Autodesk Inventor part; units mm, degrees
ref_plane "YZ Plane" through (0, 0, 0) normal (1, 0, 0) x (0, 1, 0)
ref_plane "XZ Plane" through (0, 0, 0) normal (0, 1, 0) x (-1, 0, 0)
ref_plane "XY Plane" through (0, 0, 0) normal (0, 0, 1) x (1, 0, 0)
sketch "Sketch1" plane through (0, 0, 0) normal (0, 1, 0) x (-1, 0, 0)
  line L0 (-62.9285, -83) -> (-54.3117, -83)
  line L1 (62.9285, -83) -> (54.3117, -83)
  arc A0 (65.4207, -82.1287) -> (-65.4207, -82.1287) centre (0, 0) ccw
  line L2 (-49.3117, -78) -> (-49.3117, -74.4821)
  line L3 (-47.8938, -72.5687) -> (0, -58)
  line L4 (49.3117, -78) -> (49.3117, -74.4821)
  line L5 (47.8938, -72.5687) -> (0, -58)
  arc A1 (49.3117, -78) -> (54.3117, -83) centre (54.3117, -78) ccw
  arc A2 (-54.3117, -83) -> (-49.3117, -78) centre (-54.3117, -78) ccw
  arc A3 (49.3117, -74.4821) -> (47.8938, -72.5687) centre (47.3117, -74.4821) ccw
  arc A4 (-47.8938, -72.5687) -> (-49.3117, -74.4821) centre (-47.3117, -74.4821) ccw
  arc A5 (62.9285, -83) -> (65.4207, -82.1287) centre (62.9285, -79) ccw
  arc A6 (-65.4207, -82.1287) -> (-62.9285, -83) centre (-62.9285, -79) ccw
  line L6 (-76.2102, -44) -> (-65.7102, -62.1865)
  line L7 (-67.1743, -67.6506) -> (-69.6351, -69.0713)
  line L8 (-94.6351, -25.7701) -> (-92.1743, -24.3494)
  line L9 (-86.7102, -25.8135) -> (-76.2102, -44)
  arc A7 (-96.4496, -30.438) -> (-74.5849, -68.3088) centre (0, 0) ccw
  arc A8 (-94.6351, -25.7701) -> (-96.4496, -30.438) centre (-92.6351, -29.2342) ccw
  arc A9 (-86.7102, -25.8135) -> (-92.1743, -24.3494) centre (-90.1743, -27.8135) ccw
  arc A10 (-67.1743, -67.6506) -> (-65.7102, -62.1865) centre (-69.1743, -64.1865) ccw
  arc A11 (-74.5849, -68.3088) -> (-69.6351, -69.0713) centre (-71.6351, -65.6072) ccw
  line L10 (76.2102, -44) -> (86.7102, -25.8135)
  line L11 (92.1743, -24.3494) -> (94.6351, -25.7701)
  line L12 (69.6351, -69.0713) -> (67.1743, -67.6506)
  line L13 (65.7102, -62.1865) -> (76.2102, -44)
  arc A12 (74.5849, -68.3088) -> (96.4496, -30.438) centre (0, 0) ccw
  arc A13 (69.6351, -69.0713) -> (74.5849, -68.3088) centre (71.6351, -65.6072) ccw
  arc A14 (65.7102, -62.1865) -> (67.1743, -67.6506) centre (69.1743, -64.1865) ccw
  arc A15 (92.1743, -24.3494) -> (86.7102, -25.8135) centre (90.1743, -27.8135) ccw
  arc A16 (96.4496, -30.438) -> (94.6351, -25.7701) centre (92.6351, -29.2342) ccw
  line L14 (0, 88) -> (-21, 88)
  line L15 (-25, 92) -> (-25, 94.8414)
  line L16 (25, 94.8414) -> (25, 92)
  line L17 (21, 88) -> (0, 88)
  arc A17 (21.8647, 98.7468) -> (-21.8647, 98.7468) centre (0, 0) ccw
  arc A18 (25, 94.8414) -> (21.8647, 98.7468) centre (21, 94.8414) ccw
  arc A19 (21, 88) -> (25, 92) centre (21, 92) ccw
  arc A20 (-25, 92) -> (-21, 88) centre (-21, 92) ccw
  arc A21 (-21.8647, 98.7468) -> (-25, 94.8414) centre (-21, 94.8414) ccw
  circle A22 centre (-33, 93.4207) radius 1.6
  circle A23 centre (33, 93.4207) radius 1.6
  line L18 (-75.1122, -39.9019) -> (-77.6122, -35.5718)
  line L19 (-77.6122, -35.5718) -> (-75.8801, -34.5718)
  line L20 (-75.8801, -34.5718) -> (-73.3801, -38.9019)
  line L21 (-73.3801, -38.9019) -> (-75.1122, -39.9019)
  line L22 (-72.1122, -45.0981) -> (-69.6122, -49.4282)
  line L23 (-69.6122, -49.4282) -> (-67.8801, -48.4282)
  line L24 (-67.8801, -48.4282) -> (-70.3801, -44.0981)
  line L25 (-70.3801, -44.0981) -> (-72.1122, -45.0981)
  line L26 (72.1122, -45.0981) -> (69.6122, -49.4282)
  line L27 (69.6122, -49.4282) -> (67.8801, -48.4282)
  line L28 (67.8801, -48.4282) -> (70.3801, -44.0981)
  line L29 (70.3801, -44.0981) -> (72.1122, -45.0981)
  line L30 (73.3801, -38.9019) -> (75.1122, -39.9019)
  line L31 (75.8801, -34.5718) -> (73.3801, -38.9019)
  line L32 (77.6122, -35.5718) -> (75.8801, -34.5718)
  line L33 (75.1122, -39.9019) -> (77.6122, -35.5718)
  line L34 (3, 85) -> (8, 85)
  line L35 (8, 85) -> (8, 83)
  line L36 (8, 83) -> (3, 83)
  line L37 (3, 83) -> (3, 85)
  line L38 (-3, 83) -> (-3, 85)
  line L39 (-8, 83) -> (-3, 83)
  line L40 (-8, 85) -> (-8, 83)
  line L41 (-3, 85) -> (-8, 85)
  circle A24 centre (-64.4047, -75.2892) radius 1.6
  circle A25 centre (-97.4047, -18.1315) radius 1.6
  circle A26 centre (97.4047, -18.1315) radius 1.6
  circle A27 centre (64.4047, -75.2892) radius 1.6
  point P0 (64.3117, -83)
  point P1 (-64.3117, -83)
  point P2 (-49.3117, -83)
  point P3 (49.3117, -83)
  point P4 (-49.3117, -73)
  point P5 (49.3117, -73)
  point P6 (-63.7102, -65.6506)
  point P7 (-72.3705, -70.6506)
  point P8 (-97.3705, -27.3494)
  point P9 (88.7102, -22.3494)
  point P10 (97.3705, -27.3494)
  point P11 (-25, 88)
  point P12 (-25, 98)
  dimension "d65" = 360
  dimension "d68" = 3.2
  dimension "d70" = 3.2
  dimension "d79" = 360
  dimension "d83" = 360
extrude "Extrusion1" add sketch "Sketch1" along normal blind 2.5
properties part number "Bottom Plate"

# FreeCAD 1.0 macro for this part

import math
import FreeCAD as App
import Part
import Sketcher
Q = App.Units.Quantity

doc = App.newDocument("Part")
body = doc.addObject("PartDesign::Body", "Body")

# Sketch on XZ plane
sketch1 = body.newObject("Sketcher::SketchObject", "Sketch")
sketch1.AttachmentSupport = (doc.getObject("XZ_Plane"), [""])
sketch1.MapMode = "FlatFace"
sketch1.addGeometry(Part.ArcOfCircle(Part.Circle(App.Vector(62.9285, -79, 0), App.Vector(0, 0, 1), 3.999978), math.radians(-90), math.radians(-51.460544)), False)
sketch1.addGeometry(Part.LineSegment(App.Vector(62.9285, -83, 0), App.Vector(54.3117, -83, 0)), False)
sketch1.addGeometry(Part.ArcOfCircle(Part.Circle(App.Vector(54.3117, -78, 0), App.Vector(0, 0, 1), 5), math.radians(180), math.radians(270)), False)
sketch1.addGeometry(Part.LineSegment(App.Vector(49.3117, -78, 0), App.Vector(49.3117, -74.4821, 0)), False)
sketch1.addGeometry(Part.ArcOfCircle(Part.Circle(App.Vector(47.3117, -74.4821, 0), App.Vector(0, 0, 1), 1.999985), math.radians(0), math.radians(73.079041)), False)
sketch1.addGeometry(Part.LineSegment(App.Vector(47.8938, -72.5687, 0), App.Vector(0, -58, 0)), False)
sketch1.addGeometry(Part.LineSegment(App.Vector(0, -58, 0), App.Vector(-47.8938, -72.5687, 0)), False)
sketch1.addGeometry(Part.ArcOfCircle(Part.Circle(App.Vector(-47.3117, -74.4821, 0), App.Vector(0, 0, 1), 2), math.radians(106.920959), math.radians(180)), False)
sketch1.addGeometry(Part.LineSegment(App.Vector(-49.3117, -74.4821, 0), App.Vector(-49.3117, -78, 0)), False)
sketch1.addGeometry(Part.ArcOfCircle(Part.Circle(App.Vector(-54.3117, -78, 0), App.Vector(0, 0, 1), 5), math.radians(-90), math.radians(0)), False)
sketch1.addGeometry(Part.LineSegment(App.Vector(-54.3117, -83, 0), App.Vector(-62.9285, -83, 0)), False)
sketch1.addGeometry(Part.ArcOfCircle(Part.Circle(App.Vector(-62.9285, -79, 0), App.Vector(0, 0, 1), 4), math.radians(-128.539456), math.radians(-90)), False)
sketch1.addGeometry(Part.ArcOfCircle(Part.Circle(App.Vector(0, 0, 0), App.Vector(0, 0, 1), 104.999959), math.radians(-51.460463), math.radians(231.460463)), False)
sketch1.addGeometry(Part.Circle(App.Vector(64.4047, -75.2892, 0), App.Vector(0, 0, 1), 1.6), False)
sketch1.addGeometry(Part.LineSegment(App.Vector(86.7102, -25.8135, 0), App.Vector(65.7102, -62.1865, 0)), False)
sketch1.addGeometry(Part.ArcOfCircle(Part.Circle(App.Vector(69.1743, -64.1865, 0), App.Vector(0, 0, 1), 3.999999), math.radians(149.999988), math.radians(239.999988)), False)
sketch1.addGeometry(Part.LineSegment(App.Vector(67.1743, -67.6506, 0), App.Vector(69.6351, -69.0713, 0)), False)
sketch1.addGeometry(Part.ArcOfCircle(Part.Circle(App.Vector(71.6351, -65.6072, 0), App.Vector(0, 0, 1), 3.999995), math.radians(-120.000012), math.radians(-42.485282)), False)
sketch1.addGeometry(Part.ArcOfCircle(Part.Circle(App.Vector(0, 0, 0), App.Vector(0, 0, 1), 101.138516), math.radians(-42.485102), math.radians(-17.514889)), False)
sketch1.addGeometry(Part.ArcOfCircle(Part.Circle(App.Vector(92.6351, -29.2342, 0), App.Vector(0, 0, 1), 3.999999), math.radians(-17.514929), math.radians(59.999988)), False)
sketch1.addGeometry(Part.LineSegment(App.Vector(94.6351, -25.7701, 0), App.Vector(92.1743, -24.3494, 0)), False)
sketch1.addGeometry(Part.ArcOfCircle(Part.Circle(App.Vector(90.1743, -27.8135, 0), App.Vector(0, 0, 1), 3.999999), math.radians(59.999988), math.radians(149.999988)), False)
sketch1.addGeometry(Part.LineSegment(App.Vector(69.6122, -49.4282, 0), App.Vector(72.1122, -45.0981, 0)), False)
sketch1.addGeometry(Part.LineSegment(App.Vector(72.1122, -45.0981, 0), App.Vector(70.3801, -44.0981, 0)), False)
sketch1.addGeometry(Part.LineSegment(App.Vector(70.3801, -44.0981, 0), App.Vector(67.8801, -48.4282, 0)), False)
sketch1.addGeometry(Part.LineSegment(App.Vector(67.8801, -48.4282, 0), App.Vector(69.6122, -49.4282, 0)), False)
sketch1.addGeometry(Part.LineSegment(App.Vector(73.3801, -38.9019, 0), App.Vector(75.1122, -39.9019, 0)), False)
sketch1.addGeometry(Part.LineSegment(App.Vector(75.1122, -39.9019, 0), App.Vector(77.6122, -35.5718, 0)), False)
sketch1.addGeometry(Part.LineSegment(App.Vector(77.6122, -35.5718, 0), App.Vector(75.8801, -34.5718, 0)), False)
sketch1.addGeometry(Part.LineSegment(App.Vector(75.8801, -34.5718, 0), App.Vector(73.3801, -38.9019, 0)), False)
sketch1.addGeometry(Part.Circle(App.Vector(97.4047, -18.1315, 0), App.Vector(0, 0, 1), 1.6), False)
sketch1.addGeometry(Part.Circle(App.Vector(-64.4047, -75.2892, 0), App.Vector(0, 0, 1), 1.6), False)
sketch1.addGeometry(Part.LineSegment(App.Vector(-70.3801, -44.0981, 0), App.Vector(-72.1122, -45.0981, 0)), False)
sketch1.addGeometry(Part.LineSegment(App.Vector(-72.1122, -45.0981, 0), App.Vector(-69.6122, -49.4282, 0)), False)
sketch1.addGeometry(Part.LineSegment(App.Vector(-69.6122, -49.4282, 0), App.Vector(-67.8801, -48.4282, 0)), False)
sketch1.addGeometry(Part.LineSegment(App.Vector(-67.8801, -48.4282, 0), App.Vector(-70.3801, -44.0981, 0)), False)
sketch1.addGeometry(Part.LineSegment(App.Vector(-75.1122, -39.9019, 0), App.Vector(-73.3801, -38.9019, 0)), False)
sketch1.addGeometry(Part.LineSegment(App.Vector(-73.3801, -38.9019, 0), App.Vector(-75.8801, -34.5718, 0)), False)
sketch1.addGeometry(Part.LineSegment(App.Vector(-75.8801, -34.5718, 0), App.Vector(-77.6122, -35.5718, 0)), False)
sketch1.addGeometry(Part.LineSegment(App.Vector(-77.6122, -35.5718, 0), App.Vector(-75.1122, -39.9019, 0)), False)
sketch1.addGeometry(Part.LineSegment(App.Vector(-65.7102, -62.1865, 0), App.Vector(-86.7102, -25.8135, 0)), False)
sketch1.addGeometry(Part.ArcOfCircle(Part.Circle(App.Vector(-90.1743, -27.8135, 0), App.Vector(0, 0, 1), 3.999999), math.radians(30.000012), math.radians(120.000012)), False)
sketch1.addGeometry(Part.LineSegment(App.Vector(-92.1743, -24.3494, 0), App.Vector(-94.6351, -25.7701, 0)), False)
sketch1.addGeometry(Part.ArcOfCircle(Part.Circle(App.Vector(-92.6351, -29.2342, 0), App.Vector(0, 0, 1), 3.999943), math.radians(120.000012), math.radians(197.514929)), False)
sketch1.addGeometry(Part.ArcOfCircle(Part.Circle(App.Vector(0, 0, 0), App.Vector(0, 0, 1), 101.138497), math.radians(-162.485111), math.radians(-137.514898)), False)
sketch1.addGeometry(Part.ArcOfCircle(Part.Circle(App.Vector(-71.6351, -65.6072, 0), App.Vector(0, 0, 1), 3.999999), math.radians(-137.514718), math.radians(-59.999988)), False)
sketch1.addGeometry(Part.LineSegment(App.Vector(-69.6351, -69.0713, 0), App.Vector(-67.1743, -67.6506, 0)), False)
sketch1.addGeometry(Part.ArcOfCircle(Part.Circle(App.Vector(-69.1743, -64.1865, 0), App.Vector(0, 0, 1), 3.999999), math.radians(-59.999988), math.radians(30.000012)), False)
sketch1.addGeometry(Part.Circle(App.Vector(-97.4047, -18.1315, 0), App.Vector(0, 0, 1), 1.6), False)
sketch1.addGeometry(Part.Circle(App.Vector(33, 93.4207, 0), App.Vector(0, 0, 1), 1.6), False)
sketch1.addGeometry(Part.LineSegment(App.Vector(3, 85, 0), App.Vector(3, 83, 0)), False)
sketch1.addGeometry(Part.LineSegment(App.Vector(3, 83, 0), App.Vector(8, 83, 0)), False)
sketch1.addGeometry(Part.LineSegment(App.Vector(8, 83, 0), App.Vector(8, 85, 0)), False)
sketch1.addGeometry(Part.LineSegment(App.Vector(8, 85, 0), App.Vector(3, 85, 0)), False)
sketch1.addGeometry(Part.LineSegment(App.Vector(-3, 83, 0), App.Vector(-3, 85, 0)), False)
sketch1.addGeometry(Part.LineSegment(App.Vector(-3, 85, 0), App.Vector(-8, 85, 0)), False)
sketch1.addGeometry(Part.LineSegment(App.Vector(-8, 85, 0), App.Vector(-8, 83, 0)), False)
sketch1.addGeometry(Part.LineSegment(App.Vector(-8, 83, 0), App.Vector(-3, 83, 0)), False)
sketch1.addGeometry(Part.LineSegment(App.Vector(-21, 88, 0), App.Vector(21, 88, 0)), False)
sketch1.addGeometry(Part.ArcOfCircle(Part.Circle(App.Vector(21, 92, 0), App.Vector(0, 0, 1), 4), math.radians(-90), math.radians(0)), False)
sketch1.addGeometry(Part.LineSegment(App.Vector(25, 92, 0), App.Vector(25, 94.8414, 0)), False)
sketch1.addGeometry(Part.ArcOfCircle(Part.Circle(App.Vector(21, 94.8414, 0), App.Vector(0, 0, 1), 3.999982), math.radians(0), math.radians(77.515472)), False)
sketch1.addGeometry(Part.ArcOfCircle(Part.Circle(App.Vector(0, 0, 0), App.Vector(0, 0, 1), 101.138497), math.radians(77.514899), math.radians(102.485101)), False)
sketch1.addGeometry(Part.ArcOfCircle(Part.Circle(App.Vector(-21, 94.8414, 0), App.Vector(0, 0, 1), 4), math.radians(102.484528), math.radians(180)), False)
sketch1.addGeometry(Part.LineSegment(App.Vector(-25, 94.8414, 0), App.Vector(-25, 92, 0)), False)
sketch1.addGeometry(Part.ArcOfCircle(Part.Circle(App.Vector(-21, 92, 0), App.Vector(0, 0, 1), 4), math.radians(180), math.radians(270)), False)
sketch1.addGeometry(Part.Circle(App.Vector(-33, 93.4207, 0), App.Vector(0, 0, 1), 1.6), False)
sketch1.addConstraint(Sketcher.Constraint("Tangent", 0, 1, 1, 1))
sketch1.addConstraint(Sketcher.Constraint("Tangent", 1, 2, 2, 2))
sketch1.addConstraint(Sketcher.Constraint("Tangent", 2, 1, 3, 1))
sketch1.addConstraint(Sketcher.Constraint("Tangent", 3, 2, 4, 1))
sketch1.addConstraint(Sketcher.Constraint("Tangent", 4, 2, 5, 1))
sketch1.addConstraint(Sketcher.Constraint("Coincident", 5, 2, 6, 1))
sketch1.addConstraint(Sketcher.Constraint("Tangent", 6, 2, 7, 1))
sketch1.addConstraint(Sketcher.Constraint("Tangent", 7, 2, 8, 1))
sketch1.addConstraint(Sketcher.Constraint("Tangent", 8, 2, 9, 2))
sketch1.addConstraint(Sketcher.Constraint("Tangent", 9, 1, 10, 1))
sketch1.addConstraint(Sketcher.Constraint("Tangent", 10, 2, 11, 2))
sketch1.addConstraint(Sketcher.Constraint("Tangent", 11, 1, 12, 2))
sketch1.addConstraint(Sketcher.Constraint("Tangent", 12, 1, 0, 2))
sketch1.addConstraint(Sketcher.Constraint("Tangent", 14, 2, 15, 1))
sketch1.addConstraint(Sketcher.Constraint("Tangent", 15, 2, 16, 1))
sketch1.addConstraint(Sketcher.Constraint("Tangent", 16, 2, 17, 1))
sketch1.addConstraint(Sketcher.Constraint("Tangent", 17, 2, 18, 1))
sketch1.addConstraint(Sketcher.Constraint("Tangent", 18, 2, 19, 1))
sketch1.addConstraint(Sketcher.Constraint("Tangent", 19, 2, 20, 1))
sketch1.addConstraint(Sketcher.Constraint("Tangent", 20, 2, 21, 1))
sketch1.addConstraint(Sketcher.Constraint("Tangent", 21, 2, 14, 1))
sketch1.addConstraint(Sketcher.Constraint("Coincident", 22, 2, 23, 1))
sketch1.addConstraint(Sketcher.Constraint("Coincident", 23, 2, 24, 1))
sketch1.addConstraint(Sketcher.Constraint("Coincident", 24, 2, 25, 1))
sketch1.addConstraint(Sketcher.Constraint("Coincident", 25, 2, 22, 1))
sketch1.addConstraint(Sketcher.Constraint("Coincident", 26, 2, 27, 1))
sketch1.addConstraint(Sketcher.Constraint("Coincident", 27, 2, 28, 1))
sketch1.addConstraint(Sketcher.Constraint("Coincident", 28, 2, 29, 1))
sketch1.addConstraint(Sketcher.Constraint("Coincident", 29, 2, 26, 1))
sketch1.addConstraint(Sketcher.Constraint("Coincident", 32, 2, 33, 1))
sketch1.addConstraint(Sketcher.Constraint("Coincident", 33, 2, 34, 1))
sketch1.addConstraint(Sketcher.Constraint("Coincident", 34, 2, 35, 1))
sketch1.addConstraint(Sketcher.Constraint("Coincident", 35, 2, 32, 1))
sketch1.addConstraint(Sketcher.Constraint("Coincident", 36, 2, 37, 1))
sketch1.addConstraint(Sketcher.Constraint("Coincident", 37, 2, 38, 1))
sketch1.addConstraint(Sketcher.Constraint("Coincident", 38, 2, 39, 1))
sketch1.addConstraint(Sketcher.Constraint("Coincident", 39, 2, 36, 1))
sketch1.addConstraint(Sketcher.Constraint("Tangent", 40, 2, 41, 1))
sketch1.addConstraint(Sketcher.Constraint("Tangent", 41, 2, 42, 1))
sketch1.addConstraint(Sketcher.Constraint("Tangent", 42, 2, 43, 1))
sketch1.addConstraint(Sketcher.Constraint("Tangent", 43, 2, 44, 1))
sketch1.addConstraint(Sketcher.Constraint("Tangent", 44, 2, 45, 1))
sketch1.addConstraint(Sketcher.Constraint("Tangent", 45, 2, 46, 1))
sketch1.addConstraint(Sketcher.Constraint("Tangent", 46, 2, 47, 1))
sketch1.addConstraint(Sketcher.Constraint("Tangent", 47, 2, 40, 1))
sketch1.addConstraint(Sketcher.Constraint("Coincident", 50, 2, 51, 1))
sketch1.addConstraint(Sketcher.Constraint("Coincident", 51, 2, 52, 1))
sketch1.addConstraint(Sketcher.Constraint("Coincident", 52, 2, 53, 1))
sketch1.addConstraint(Sketcher.Constraint("Coincident", 53, 2, 50, 1))
sketch1.addConstraint(Sketcher.Constraint("Coincident", 54, 2, 55, 1))
sketch1.addConstraint(Sketcher.Constraint("Coincident", 55, 2, 56, 1))
sketch1.addConstraint(Sketcher.Constraint("Coincident", 56, 2, 57, 1))
sketch1.addConstraint(Sketcher.Constraint("Coincident", 57, 2, 54, 1))
sketch1.addConstraint(Sketcher.Constraint("Tangent", 58, 2, 59, 1))
sketch1.addConstraint(Sketcher.Constraint("Tangent", 59, 2, 60, 1))
sketch1.addConstraint(Sketcher.Constraint("Tangent", 60, 2, 61, 1))
sketch1.addConstraint(Sketcher.Constraint("Tangent", 61, 2, 62, 1))
sketch1.addConstraint(Sketcher.Constraint("Tangent", 62, 2, 63, 1))
sketch1.addConstraint(Sketcher.Constraint("Tangent", 63, 2, 64, 1))
sketch1.addConstraint(Sketcher.Constraint("Tangent", 64, 2, 65, 1))
sketch1.addConstraint(Sketcher.Constraint("Tangent", 65, 2, 58, 1))
sketch1.addConstraint(Sketcher.Constraint("Horizontal", 1))
sketch1.addConstraint(Sketcher.Constraint("Vertical", 3))
sketch1.addConstraint(Sketcher.Constraint("Vertical", 8))
sketch1.addConstraint(Sketcher.Constraint("Horizontal", 10))
sketch1.addConstraint(Sketcher.Constraint("Vertical", 50))
sketch1.addConstraint(Sketcher.Constraint("Horizontal", 51))
sketch1.addConstraint(Sketcher.Constraint("Vertical", 52))
sketch1.addConstraint(Sketcher.Constraint("Horizontal", 53))
sketch1.addConstraint(Sketcher.Constraint("Vertical", 54))
sketch1.addConstraint(Sketcher.Constraint("Horizontal", 55))
sketch1.addConstraint(Sketcher.Constraint("Vertical", 56))
sketch1.addConstraint(Sketcher.Constraint("Horizontal", 57))
sketch1.addConstraint(Sketcher.Constraint("Horizontal", 58))
sketch1.addConstraint(Sketcher.Constraint("Vertical", 60))
sketch1.addConstraint(Sketcher.Constraint("Vertical", 64))
sketch1.addConstraint(Sketcher.Constraint("Coincident", 12, 3, -1, 1))
sketch1.addConstraint(Sketcher.Constraint("Coincident", 18, 3, -1, 1))
sketch1.addConstraint(Sketcher.Constraint("Coincident", 44, 3, -1, 1))
sketch1.addConstraint(Sketcher.Constraint("Coincident", 62, 3, -1, 1))
sketch1.addConstraint(Sketcher.Constraint("Equal", 4, 7))
sketch1.addConstraint(Sketcher.Constraint("Equal", 2, 9))
sketch1.addConstraint(Sketcher.Constraint("Equal", 0, 11))
sketch1.addConstraint(Sketcher.Constraint("Equal", 11, 15))
sketch1.addConstraint(Sketcher.Constraint("Equal", 15, 17))
sketch1.addConstraint(Sketcher.Constraint("Equal", 17, 19))
sketch1.addConstraint(Sketcher.Constraint("Equal", 19, 21))
sketch1.addConstraint(Sketcher.Constraint("Equal", 13, 30))
sketch1.addConstraint(Sketcher.Constraint("Equal", 30, 31))
sketch1.addConstraint(Sketcher.Constraint("Equal", 21, 41))
sketch1.addConstraint(Sketcher.Constraint("Equal", 41, 43))
sketch1.addConstraint(Sketcher.Constraint("Equal", 18, 44))
sketch1.addConstraint(Sketcher.Constraint("Equal", 43, 45))
sketch1.addConstraint(Sketcher.Constraint("Equal", 45, 47))
sketch1.addConstraint(Sketcher.Constraint("Equal", 31, 48))
sketch1.addConstraint(Sketcher.Constraint("Equal", 48, 49))
sketch1.addConstraint(Sketcher.Constraint("Equal", 47, 59))
sketch1.addConstraint(Sketcher.Constraint("Equal", 59, 61))
sketch1.addConstraint(Sketcher.Constraint("Equal", 44, 62))
sketch1.addConstraint(Sketcher.Constraint("Equal", 61, 63))
sketch1.addConstraint(Sketcher.Constraint("Equal", 63, 65))
sketch1.addConstraint(Sketcher.Constraint("Equal", 49, 66))
sketch1.addConstraint(Sketcher.Constraint("Symmetric", 4, 3, 7, 3, -2))
sketch1.addConstraint(Sketcher.Constraint("Symmetric", 13, 3, 31, 3, -2))
sketch1.addConstraint(Sketcher.Constraint("Symmetric", 21, 3, 41, 3, -2))
sketch1.addConstraint(Sketcher.Constraint("Symmetric", 15, 3, 47, 3, -2))
sketch1.addConstraint(Sketcher.Constraint("Symmetric", 30, 3, 48, 3, -2))
sketch1.addConstraint(Sketcher.Constraint("Symmetric", 49, 3, 66, 3, -2))
sketch1.addConstraint(Sketcher.Constraint("Symmetric", 22, 2, 32, 2, -2))
sketch1.addConstraint(Sketcher.Constraint("Symmetric", 25, 2, 33, 2, -2))
sketch1.addConstraint(Sketcher.Constraint("Symmetric", 24, 2, 34, 2, -2))
sketch1.addConstraint(Sketcher.Constraint("Symmetric", 23, 2, 35, 2, -2))
sketch1.addConstraint(Sketcher.Constraint("Symmetric", 29, 2, 36, 2, -2))
sketch1.addConstraint(Sketcher.Constraint("Symmetric", 28, 2, 37, 2, -2))
sketch1.addConstraint(Sketcher.Constraint("Symmetric", 27, 2, 38, 2, -2))
sketch1.addConstraint(Sketcher.Constraint("Symmetric", 26, 2, 39, 2, -2))
sketch1.addConstraint(Sketcher.Constraint("Symmetric", 53, 2, 54, 2, -2))
sketch1.addConstraint(Sketcher.Constraint("Symmetric", 51, 2, 56, 2, -2))
sketch1.addConstraint(Sketcher.Constraint("PointOnObject", 5, 2, -2))
sketch1.addConstraint(Sketcher.Constraint("Perpendicular", 14, 16))
sketch1.addConstraint(Sketcher.Constraint("Parallel", 16, 20))
sketch1.addConstraint(Sketcher.Constraint("Perpendicular", 20, 22))
sketch1.addConstraint(Sketcher.Constraint("Perpendicular", 22, 23))
sketch1.addConstraint(Sketcher.Constraint("Perpendicular", 23, 24))
sketch1.addConstraint(Sketcher.Constraint("Perpendicular", 24, 25))
sketch1.addConstraint(Sketcher.Constraint("Parallel", 25, 26))
sketch1.addConstraint(Sketcher.Constraint("Perpendicular", 26, 27))
sketch1.addConstraint(Sketcher.Constraint("Perpendicular", 27, 28))
sketch1.addConstraint(Sketcher.Constraint("Perpendicular", 28, 29))
sketch1.addConstraint(Sketcher.Constraint("Perpendicular", 40, 42))
sketch1.addConstraint(Sketcher.Constraint("Parallel", 42, 46))
sketch1.addConstraint(Sketcher.Constraint("Horizontal", 2, 3, 9, 3))
sketch1.addConstraint(Sketcher.Constraint("Horizontal", 61, 3, 63, 3))
sketch1.addConstraint(Sketcher.Constraint("Equal", 16, 20))
sketch1.addConstraint(Sketcher.Constraint("Equal", 25, 26))
sketch1.addConstraint(Sketcher.Constraint("Equal", 24, 27))
sketch1.addConstraint(Sketcher.Constraint("Diameter", 13, 3.2))
sketch1.addConstraint(Sketcher.Constraint("Radius", 0, 4.0))
sketch1.addConstraint(Sketcher.Constraint("Radius", 2, 5.0))
sketch1.addConstraint(Sketcher.Constraint("Radius", 4, 2.0))
sketch1.addConstraint(Sketcher.Constraint("Radius", 12, 105.0))
sketch1.addConstraint(Sketcher.Constraint("DistanceX", 51, 1, 51, 2, 5.0))
sketch1.addConstraint(Sketcher.Constraint("DistanceX", 58, 1, 58, 2, 42.0))
sketch1.addConstraint(Sketcher.Constraint("DistanceY", 50, 2, 50, 1, 2.0))
sketch1.addConstraint(Sketcher.Constraint("Angle", 14, Q("-120 deg")))
sketch1.addConstraint(Sketcher.Constraint("Distance", 14, 42.0))
sketch1.addConstraint(Sketcher.Constraint("Distance", 22, 5.0))
sketch1.addConstraint(Sketcher.Constraint("Distance", 23, 2.0))
sketch1.addConstraint(Sketcher.Constraint("DistanceY", 0, 3, -1, 1, 79.0))
sketch1.addConstraint(Sketcher.Constraint("DistanceX", -1, 1, 49, 3, 33.0))
sketch1.addConstraint(Sketcher.Constraint("DistanceY", -1, 1, 59, 3, 92.0))
sketch1.addConstraint(Sketcher.Constraint("DistanceY", 5, 2, -1, 1, 58.0))
sketch1.addConstraint(Sketcher.Constraint("DistanceX", -1, 1, 50, 2, 3.0))
sketch1.addConstraint(Sketcher.Constraint("DistanceY", -1, 1, 50, 2, 83.0))
sketch1.addConstraint(Sketcher.Constraint("Angle", 5, Q("163.081 deg")))
sketch1.addConstraint(Sketcher.Constraint("Radius", 18, 101.1385))
sketch1.addConstraint(Sketcher.Constraint("DistanceY", 3, 1, 3, 2, 3.518))
sketch1.addConstraint(Sketcher.Constraint("DistanceX", -1, 1, 23, 2, 70.38))
sketch1.addConstraint(Sketcher.Constraint("DistanceX", -1, 1, 28, 2, 75.88))
sketch1.addConstraint(Sketcher.Constraint("DistanceY", 22, 2, -1, 1, 45.098))
sketch1.addConstraint(Sketcher.Constraint("DistanceY", 26, 2, -1, 1, 39.902))
sketch1.addConstraint(Sketcher.Constraint("Distance", 16, 2.8415))
sketch1.addConstraint(Sketcher.Constraint("DistanceX", -1, 1, 13, 3, 64.4047))
sketch1.addConstraint(Sketcher.Constraint("DistanceY", 13, 3, -1, 1, 75.2892))
sketch1.addConstraint(Sketcher.Constraint("DistanceX", -1, 1, 30, 3, 97.4047))
sketch1.addConstraint(Sketcher.Constraint("DistanceY", 30, 3, -1, 1, 18.1315))
sketch1.addConstraint(Sketcher.Constraint("DistanceY", -1, 1, 49, 3, 93.4207))
pad1 = body.newObject("PartDesign::Pad", "Pad")
pad1.Profile = sketch1
pad1.Length = 2.5
pad1.Reversed = True

doc.recompute()
